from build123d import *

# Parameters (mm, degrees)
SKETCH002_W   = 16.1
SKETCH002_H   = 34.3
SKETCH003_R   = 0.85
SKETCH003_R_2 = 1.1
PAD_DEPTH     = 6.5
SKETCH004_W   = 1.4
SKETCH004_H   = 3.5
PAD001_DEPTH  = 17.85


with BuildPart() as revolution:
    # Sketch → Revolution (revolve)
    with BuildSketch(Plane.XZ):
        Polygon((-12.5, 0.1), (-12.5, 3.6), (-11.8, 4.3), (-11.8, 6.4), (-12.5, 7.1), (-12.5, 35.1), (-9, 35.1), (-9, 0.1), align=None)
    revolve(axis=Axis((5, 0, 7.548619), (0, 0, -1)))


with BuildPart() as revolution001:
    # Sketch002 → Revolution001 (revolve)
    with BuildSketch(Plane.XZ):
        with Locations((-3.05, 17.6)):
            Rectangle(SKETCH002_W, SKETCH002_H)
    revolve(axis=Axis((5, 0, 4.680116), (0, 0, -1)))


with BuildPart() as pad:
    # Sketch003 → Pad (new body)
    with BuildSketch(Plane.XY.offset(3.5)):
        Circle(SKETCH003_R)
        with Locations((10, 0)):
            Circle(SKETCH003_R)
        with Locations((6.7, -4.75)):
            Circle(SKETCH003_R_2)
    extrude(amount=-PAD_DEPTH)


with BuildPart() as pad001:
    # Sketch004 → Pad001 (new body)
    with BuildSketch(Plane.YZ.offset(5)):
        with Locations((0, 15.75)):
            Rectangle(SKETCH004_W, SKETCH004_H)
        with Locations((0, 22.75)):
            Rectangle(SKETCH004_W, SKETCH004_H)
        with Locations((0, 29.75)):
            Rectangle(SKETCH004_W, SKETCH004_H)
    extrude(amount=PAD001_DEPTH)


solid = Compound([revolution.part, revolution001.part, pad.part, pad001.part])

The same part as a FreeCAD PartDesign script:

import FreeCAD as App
import Part
import Sketcher

V = App.Vector


def add_polygon(sketch, points):
    """Adds a closed chain of lines whose ends are joined by coincident constraints."""
    first, n = sketch.GeometryCount, len(points)
    for a, b in zip(points, points[1:] + points[:1]):
        sketch.addGeometry(Part.LineSegment(App.Vector(*a, 0), App.Vector(*b, 0)), False)
    for i in range(n):
        sketch.addConstraint(Sketcher.Constraint("Coincident", first + i, 2, first + (i + 1) % n, 1))

doc = App.newDocument("Part")
params = doc.addObject("Spreadsheet::Sheet", "Params")
for row, (alias, value) in enumerate([
    ("sketch1_height", "35 mm"),
    ("sketch1_height2", "28 mm"),
    ("sketch1_width", "3.5 mm"),
    ("sketch1_height3", "2.1 mm"),
    ("revolution_angle", "360 deg"),
    ("sketch2_width", "16.1 mm"),
    ("sketch2_height", "34.3 mm"),
    ("revolution2_angle", "360 deg"),
    ("sketch3_diameter", "1.7 mm"),
    ("sketch3_diameter2", "2.2 mm"),
    ("pad1_length", "6.5 mm"),
    ("sketch4_width", "1.4 mm"),
    ("sketch4_height", "3.5 mm"),
    ("pad2_length", "17.85 mm"),
], start=1):
    params.set(f"A{row}", alias)
    params.set(f"B{row}", "=" + value)
    params.setAlias(f"B{row}", alias)

body = doc.addObject("PartDesign::Body", "Body")

sketch1 = doc.addObject("Sketcher::SketchObject", "Sketch")
body.addObject(sketch1)
sketch1.AttachmentSupport = (doc.XZ_Plane, [""])
sketch1.MapMode = "FlatFace"
add_polygon(sketch1, [(-12.5, 3.6), (-12.5, 0.1), (-9, 0.1), (-9, 35.1), (-12.5, 35.1), (-12.5, 7.1), (-11.8, 6.4), (-11.8, 4.3)])
sketch1.addGeometry(Part.LineSegment(V(5, 35.1, 0), V(5, 0.1, 0)), True)
sketch1.addConstraint([
    Sketcher.Constraint("Vertical", 0),
    Sketcher.Constraint("Horizontal", 1),
    Sketcher.Constraint("Vertical", 2),
    Sketcher.Constraint("Horizontal", 3),
    Sketcher.Constraint("Vertical", 4),
    Sketcher.Constraint("Vertical", 6),
    Sketcher.Constraint("Vertical", 8),
    Sketcher.Constraint("Perpendicular", 5, 7),
    Sketcher.Constraint("Horizontal", 3, 2, 8, 1),
    Sketcher.Constraint("Horizontal", 1, 2, 8, 2),
    Sketcher.Constraint("Vertical", 0, 2, 3, 2),
    Sketcher.Constraint("Equal", 3, 0),
    Sketcher.Constraint("Equal", 5, 7),
    Sketcher.Constraint("DistanceY", 2, 1, 2, 2, 35.0),
    Sketcher.Constraint("DistanceY", 4, 2, 4, 1, 28.0),
    Sketcher.Constraint("DistanceX", 1, 1, 1, 2, 3.5),
    Sketcher.Constraint("DistanceY", 6, 2, 6, 1, 2.1),
    Sketcher.Constraint("DistanceX", 1, 2, -1, 1, 9.0),
    Sketcher.Constraint("DistanceX", -1, 1, 8, 1, 5.0),
    Sketcher.Constraint("DistanceY", -1, 1, 0, 2, 0.1),
])
sketch1.setExpression("Constraints[21]", "Params.sketch1_height")
sketch1.setExpression("Constraints[22]", "Params.sketch1_height2")
sketch1.setExpression("Constraints[23]", "Params.sketch1_width")
sketch1.setExpression("Constraints[24]", "Params.sketch1_height3")
revolution = doc.addObject("PartDesign::Revolution", "Revolution")
body.addObject(revolution)
revolution.Profile = sketch1
revolution.ReferenceAxis = (sketch1, ["Axis0"])
revolution.setExpression("Angle", "Params.revolution_angle")
body2 = doc.addObject("PartDesign::Body", "Body001")

sketch2 = doc.addObject("Sketcher::SketchObject", "Sketch001")
body2.addObject(sketch2)
sketch2.AttachmentSupport = (doc.getObject("XZ_Plane001"), [""])
sketch2.MapMode = "FlatFace"
add_polygon(sketch2, [(-11, 35), (-11, 0), (5, 0), (5, 35)])
sketch2.addGeometry(Part.LineSegment(V(5, 35, 0), V(5, 0, 0)), True)
sketch2.addConstraint([
    Sketcher.Constraint("Vertical", 0),
    Sketcher.Constraint("Horizontal", 1),
    Sketcher.Constraint("Vertical", 2),
    Sketcher.Constraint("Horizontal", 3),
    Sketcher.Constraint("Vertical", 4),
    Sketcher.Constraint("Coincident", 4, 1, 2, 2),
    Sketcher.Constraint("Horizontal", 0, 2, 4, 2),
    Sketcher.Constraint("DistanceX", 1, 1, 1, 2, 16.1),
    Sketcher.Constraint("DistanceY", 0, 2, 0, 1, 34.3),
    Sketcher.Constraint("DistanceX", -1, 1, 1, 2, 5.0),
    Sketcher.Constraint("DistanceY", -1, 1, 0, 2, 0.45),
])
sketch2.setExpression("Constraints[11]", "Params.sketch2_width")
sketch2.setExpression("Constraints[12]", "Params.sketch2_height")
revolution2 = doc.addObject("PartDesign::Revolution", "Revolution001")
body2.addObject(revolution2)
revolution2.Profile = sketch2
revolution2.ReferenceAxis = (sketch2, ["Axis0"])
revolution2.setExpression("Angle", "Params.revolution2_angle")
body3 = doc.addObject("PartDesign::Body", "Body002")
body3.AllowCompound = True

sketch3 = doc.addObject("Sketcher::SketchObject", "Sketch002")
body3.addObject(sketch3)
sketch3.AttachmentSupport = (doc.getObject("XY_Plane002"), [""])
sketch3.MapMode = "FlatFace"
sketch3.AttachmentOffset = App.Placement(V(0, 0, 3.5), App.Rotation())
sketch3.addGeometry([
    Part.Circle(V(0, 0, 0), V(0, 0, 1), 0.8),
    Part.Circle(V(10, 0, 0), V(0, 0, 1), 0.8),
    Part.Circle(V(6.7, -4.8, 0), V(0, 0, 1), 1.1),
], False)
sketch3.addConstraint([
    Sketcher.Constraint("Coincident", 0, 3, -1, 1),
    Sketcher.Constraint("Equal", 0, 1),
    Sketcher.Constraint("PointOnObject", 1, 3, -1),
    Sketcher.Constraint("Diameter", 0, 1.7),
    Sketcher.Constraint("Diameter", 2, 2.2),
    Sketcher.Constraint("DistanceX", -1, 1, 1, 3, 10.0),
    Sketcher.Constraint("DistanceX", -1, 1, 2, 3, 6.7),
    Sketcher.Constraint("DistanceY", 2, 3, -1, 1, 4.75),
])
sketch3.setExpression("Constraints[3]", "Params.sketch3_diameter")
sketch3.setExpression("Constraints[4]", "Params.sketch3_diameter2")
pad1 = doc.addObject("PartDesign::Pad", "Pad")
body3.addObject(pad1)
pad1.Profile = sketch3
pad1.setExpression("Length", "Params.pad1_length")
pad1.Reversed = True
body4 = doc.addObject("PartDesign::Body", "Body003")
body4.AllowCompound = True

sketch4 = doc.addObject("Sketcher::SketchObject", "Sketch003")
body4.addObject(sketch4)
sketch4.AttachmentSupport = (doc.getObject("YZ_Plane003"), [""])
sketch4.MapMode = "FlatFace"
sketch4.AttachmentOffset = App.Placement(V(0, 0, 5), App.Rotation())
add_polygon(sketch4, [(-0.7, 17.5), (-0.7, 14), (0.7, 14), (0.7, 17.5)])
add_polygon(sketch4, [(-0.7, 24.5), (-0.7, 21), (0.7, 21), (0.7, 24.5)])
add_polygon(sketch4, [(-0.7, 31.5), (-0.7, 28), (0.7, 28), (0.7, 31.5)])
sketch4.addConstraint([
    Sketcher.Constraint("Vertical", 0),
    Sketcher.Constraint("Horizontal", 1),
    Sketcher.Constraint("Vertical", 2),
    Sketcher.Constraint("Horizontal", 3),
    Sketcher.Constraint("Vertical", 4),
    Sketcher.Constraint("Horizontal", 5),
    Sketcher.Constraint("Vertical", 6),
    Sketcher.Constraint("Horizontal", 7),
    Sketcher.Constraint("Vertical", 8),
    Sketcher.Constraint("Horizontal", 9),
    Sketcher.Constraint("Vertical", 10),
    Sketcher.Constraint("Horizontal", 11),
    Sketcher.Constraint("Vertical", 3, 2, 4, 2),
    Sketcher.Constraint("Vertical", 2, 2, 5, 2),
    Sketcher.Constraint("Vertical", 7, 2, 8, 2),
    Sketcher.Constraint("Vertical", 6, 2, 9, 2),
    Sketcher.Constraint("Equal", 2, 4),
    Sketcher.Constraint("Equal", 6, 8),
    Sketcher.Constraint("DistanceX", 1, 1, 1, 2, 1.4),
    Sketcher.Constraint("DistanceY", 0, 2, 0, 1, 3.5),
    Sketcher.Constraint("DistanceY", -1, 1, 0, 2, 14.0),
    Sketcher.Constraint("DistanceY", -1, 1, 4, 2, 21.0),
    Sketcher.Constraint("DistanceY", -1, 1, 8, 2, 28.0),
    Sketcher.Constraint("DistanceX", 0, 2, -1, 1, 0.7),
])
sketch4.setExpression("Constraints[30]", "Params.sketch4_width")
sketch4.setExpression("Constraints[31]", "Params.sketch4_height")
pad2 = doc.addObject("PartDesign::Pad", "Pad001")
body4.addObject(pad2)
pad2.Profile = sketch4
pad2.setExpression("Length", "Params.pad2_length")

doc.recompute()
